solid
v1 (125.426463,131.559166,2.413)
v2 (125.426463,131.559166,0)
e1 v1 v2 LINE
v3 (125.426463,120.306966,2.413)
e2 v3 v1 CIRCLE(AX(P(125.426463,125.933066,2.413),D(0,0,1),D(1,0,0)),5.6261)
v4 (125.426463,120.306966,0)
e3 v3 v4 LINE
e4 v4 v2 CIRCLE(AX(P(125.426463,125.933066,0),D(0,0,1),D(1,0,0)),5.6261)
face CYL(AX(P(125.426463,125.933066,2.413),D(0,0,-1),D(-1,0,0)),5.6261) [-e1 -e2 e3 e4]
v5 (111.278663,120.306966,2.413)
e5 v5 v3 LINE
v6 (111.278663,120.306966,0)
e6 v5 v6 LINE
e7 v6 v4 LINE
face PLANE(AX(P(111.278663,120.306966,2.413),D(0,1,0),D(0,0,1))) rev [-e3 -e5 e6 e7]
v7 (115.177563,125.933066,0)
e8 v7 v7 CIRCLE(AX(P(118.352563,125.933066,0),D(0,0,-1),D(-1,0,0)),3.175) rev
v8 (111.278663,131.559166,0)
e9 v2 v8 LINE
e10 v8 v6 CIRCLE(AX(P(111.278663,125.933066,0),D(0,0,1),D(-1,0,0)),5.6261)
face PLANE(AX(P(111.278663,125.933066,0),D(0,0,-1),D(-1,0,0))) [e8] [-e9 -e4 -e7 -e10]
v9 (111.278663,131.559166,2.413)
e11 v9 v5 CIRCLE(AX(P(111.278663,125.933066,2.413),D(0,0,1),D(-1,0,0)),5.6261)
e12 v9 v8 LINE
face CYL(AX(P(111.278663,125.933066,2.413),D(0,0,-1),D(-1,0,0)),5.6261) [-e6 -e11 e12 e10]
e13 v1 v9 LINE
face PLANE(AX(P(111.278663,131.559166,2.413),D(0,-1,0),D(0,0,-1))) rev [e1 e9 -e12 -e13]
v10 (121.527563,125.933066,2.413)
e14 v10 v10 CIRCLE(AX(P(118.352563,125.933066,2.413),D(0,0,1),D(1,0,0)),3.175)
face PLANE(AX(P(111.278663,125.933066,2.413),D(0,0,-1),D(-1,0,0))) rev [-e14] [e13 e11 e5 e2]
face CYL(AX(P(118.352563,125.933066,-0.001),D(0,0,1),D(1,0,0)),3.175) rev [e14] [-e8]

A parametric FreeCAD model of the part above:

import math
import FreeCAD as App
import Part
import Sketcher
from FreeCAD import Vector
Q = App.Units.Quantity

doc = App.newDocument("Part")
body = doc.addObject("PartDesign::Body", "Body")

# Sketch on XY plane
sketch1 = doc.addObject("Sketcher::SketchObject", "Sketch")
body.addObject(sketch1)
sketch1.AttachmentSupport = (doc.XY_Plane, [""])
sketch1.MapMode = "FlatFace"
sketch1.addGeometry(Part.LineSegment(Vector(125.426463, 131.559166, 0), Vector(111.278663, 131.559166, 0)), False)
sketch1.addGeometry(Part.ArcOfCircle(Part.Circle(Vector(111.278663, 125.933066, 0), Vector(0, 0, 1), 5.6261), math.radians(90), math.radians(270)), False)
sketch1.addGeometry(Part.LineSegment(Vector(111.278663, 120.306966, 0), Vector(125.426463, 120.306966, 0)), False)
sketch1.addGeometry(Part.ArcOfCircle(Part.Circle(Vector(125.426463, 125.933066, 0), Vector(0, 0, 1), 5.6261), math.radians(-90), math.radians(90)), False)
sketch1.addConstraint(Sketcher.Constraint("Tangent", 0, 2, 1, 1))
sketch1.addConstraint(Sketcher.Constraint("Tangent", 1, 2, 2, 1))
sketch1.addConstraint(Sketcher.Constraint("Tangent", 2, 2, 3, 1))
sketch1.addConstraint(Sketcher.Constraint("Tangent", 3, 2, 0, 1))
sketch1.addConstraint(Sketcher.Constraint("Horizontal", 0))
sketch1.addConstraint(Sketcher.Constraint("Horizontal", 2))
sketch1.addConstraint(Sketcher.Constraint("Radius", 1, Q("0.2215 in")))
sketch1.addConstraint(Sketcher.Constraint("DistanceX", 0, 2, 0, 1, Q("0.557 in")))
sketch1.addConstraint(Sketcher.Constraint("DistanceX", -1, 1, 1, 3, Q("111.278663 mm")))
sketch1.addConstraint(Sketcher.Constraint("DistanceY", -1, 1, 1, 3, Q("125.933066 mm")))
pad1 = doc.addObject("PartDesign::Pad", "Pad")
body.addObject(pad1)
pad1.Profile = sketch1
pad1.Length = Q("0.095 in")

# Sketch on XY plane
sketch2 = doc.addObject("Sketcher::SketchObject", "Sketch001")
body.addObject(sketch2)
sketch2.AttachmentSupport = (doc.XY_Plane, [""])
sketch2.MapMode = "FlatFace"
sketch2.AttachmentOffset = App.Placement(Vector(0, 0, 0.095 * 25.4), App.Rotation())
sketch2.addGeometry(Part.Circle(Vector(118.352563, 125.933066, 0), Vector(0, 0, 1), 3.175), False)
sketch2.addConstraint(Sketcher.Constraint("Diameter", 0, Q("0.25 in")))
sketch2.addConstraint(Sketcher.Constraint("DistanceX", -1, 1, 0, 3, Q("118.352563 mm")))
sketch2.addConstraint(Sketcher.Constraint("DistanceY", -1, 1, 0, 3, Q("125.933066 mm")))
pocket1 = doc.addObject("PartDesign::Pocket", "Pocket")
body.addObject(pocket1)
pocket1.Profile = sketch2
pocket1.Type = "UpToFirst"

doc.recompute()
